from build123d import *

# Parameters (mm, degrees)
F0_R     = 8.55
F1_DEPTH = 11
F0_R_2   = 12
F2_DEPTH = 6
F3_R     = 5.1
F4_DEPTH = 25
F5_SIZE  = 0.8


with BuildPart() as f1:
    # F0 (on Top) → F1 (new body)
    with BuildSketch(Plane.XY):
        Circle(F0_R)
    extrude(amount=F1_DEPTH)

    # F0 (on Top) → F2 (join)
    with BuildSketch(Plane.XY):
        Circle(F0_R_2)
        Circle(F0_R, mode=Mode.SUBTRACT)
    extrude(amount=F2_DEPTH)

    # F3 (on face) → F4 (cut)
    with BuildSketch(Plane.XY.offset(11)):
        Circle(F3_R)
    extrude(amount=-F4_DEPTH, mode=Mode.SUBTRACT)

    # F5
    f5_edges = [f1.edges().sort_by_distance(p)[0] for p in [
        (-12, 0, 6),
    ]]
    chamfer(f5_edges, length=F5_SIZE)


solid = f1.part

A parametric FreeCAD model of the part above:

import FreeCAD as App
import Part
import Sketcher
Q = App.Units.Quantity


def edges_at(feature, points):
    """Names of the edges that pass closest to the given points."""
    edges = feature.Shape.Edges
    near = lambda p: min(range(len(edges)), key=lambda i: edges[i].distToShape(Part.Vertex(*p))[0])
    return sorted({f"Edge{near(p) + 1}" for p in points})

doc = App.newDocument("Part")
body = doc.addObject("PartDesign::Body", "Body")

sketch1 = doc.addObject("Sketcher::SketchObject", "Sketch")
body.addObject(sketch1)
sketch1.AttachmentSupport = (doc.XY_Plane, [""])
sketch1.MapMode = "FlatFace"
sketch1.addGeometry(Part.Circle(App.Vector(0, 0, 0), App.Vector(0, 0, 1), 9), False)
sketch1.addConstraint(Sketcher.Constraint("Coincident", 0, 3, -1, 1))
sketch1.addConstraint(Sketcher.Constraint("Diameter", 0, Q("17.1 mm")))
pad1 = doc.addObject("PartDesign::Pad", "Pad")
body.addObject(pad1)
pad1.Profile = sketch1
pad1.Length = 11

sketch2 = doc.addObject("Sketcher::SketchObject", "Sketch001")
body.addObject(sketch2)
sketch2.AttachmentSupport = (doc.XY_Plane, [""])
sketch2.MapMode = "FlatFace"
sketch2.addGeometry(Part.Circle(App.Vector(0, 0, 0), App.Vector(0, 0, 1), 12), False)
sketch2.addGeometry(Part.Circle(App.Vector(0, 0, 0), App.Vector(0, 0, 1), 9), False)
sketch2.addConstraint(Sketcher.Constraint("Coincident", 0, 3, -1, 1))
sketch2.addConstraint(Sketcher.Constraint("Coincident", 1, 3, -1, 1))
sketch2.addConstraint(Sketcher.Constraint("Diameter", 0, Q("24 mm")))
sketch2.addConstraint(Sketcher.Constraint("Diameter", 1, Q("17.1 mm")))
pad2 = doc.addObject("PartDesign::Pad", "Pad001")
body.addObject(pad2)
pad2.Profile = sketch2
pad2.Length = 6

sketch3 = doc.addObject("Sketcher::SketchObject", "Sketch002")
body.addObject(sketch3)
sketch3.AttachmentSupport = (doc.XY_Plane, [""])
sketch3.MapMode = "FlatFace"
sketch3.AttachmentOffset = App.Placement(App.Vector(0, 0, 11), App.Rotation())
sketch3.addGeometry(Part.Circle(App.Vector(0, 0, 0), App.Vector(0, 0, 1), 5), False)
sketch3.addConstraint(Sketcher.Constraint("Coincident", 0, 3, -1, 1))
sketch3.addConstraint(Sketcher.Constraint("Diameter", 0, Q("10.2 mm")))
pocket1 = doc.addObject("PartDesign::Pocket", "Pocket")
body.addObject(pocket1)
pocket1.Profile = sketch3
pocket1.Length = 25
doc.recompute()

chamfer = doc.addObject("PartDesign::Chamfer", "Chamfer")
body.addObject(chamfer)
chamfer.Base = (pocket1, edges_at(pocket1, [(-12, 0, 6)]))
chamfer.Size = 0.8

doc.recompute()
